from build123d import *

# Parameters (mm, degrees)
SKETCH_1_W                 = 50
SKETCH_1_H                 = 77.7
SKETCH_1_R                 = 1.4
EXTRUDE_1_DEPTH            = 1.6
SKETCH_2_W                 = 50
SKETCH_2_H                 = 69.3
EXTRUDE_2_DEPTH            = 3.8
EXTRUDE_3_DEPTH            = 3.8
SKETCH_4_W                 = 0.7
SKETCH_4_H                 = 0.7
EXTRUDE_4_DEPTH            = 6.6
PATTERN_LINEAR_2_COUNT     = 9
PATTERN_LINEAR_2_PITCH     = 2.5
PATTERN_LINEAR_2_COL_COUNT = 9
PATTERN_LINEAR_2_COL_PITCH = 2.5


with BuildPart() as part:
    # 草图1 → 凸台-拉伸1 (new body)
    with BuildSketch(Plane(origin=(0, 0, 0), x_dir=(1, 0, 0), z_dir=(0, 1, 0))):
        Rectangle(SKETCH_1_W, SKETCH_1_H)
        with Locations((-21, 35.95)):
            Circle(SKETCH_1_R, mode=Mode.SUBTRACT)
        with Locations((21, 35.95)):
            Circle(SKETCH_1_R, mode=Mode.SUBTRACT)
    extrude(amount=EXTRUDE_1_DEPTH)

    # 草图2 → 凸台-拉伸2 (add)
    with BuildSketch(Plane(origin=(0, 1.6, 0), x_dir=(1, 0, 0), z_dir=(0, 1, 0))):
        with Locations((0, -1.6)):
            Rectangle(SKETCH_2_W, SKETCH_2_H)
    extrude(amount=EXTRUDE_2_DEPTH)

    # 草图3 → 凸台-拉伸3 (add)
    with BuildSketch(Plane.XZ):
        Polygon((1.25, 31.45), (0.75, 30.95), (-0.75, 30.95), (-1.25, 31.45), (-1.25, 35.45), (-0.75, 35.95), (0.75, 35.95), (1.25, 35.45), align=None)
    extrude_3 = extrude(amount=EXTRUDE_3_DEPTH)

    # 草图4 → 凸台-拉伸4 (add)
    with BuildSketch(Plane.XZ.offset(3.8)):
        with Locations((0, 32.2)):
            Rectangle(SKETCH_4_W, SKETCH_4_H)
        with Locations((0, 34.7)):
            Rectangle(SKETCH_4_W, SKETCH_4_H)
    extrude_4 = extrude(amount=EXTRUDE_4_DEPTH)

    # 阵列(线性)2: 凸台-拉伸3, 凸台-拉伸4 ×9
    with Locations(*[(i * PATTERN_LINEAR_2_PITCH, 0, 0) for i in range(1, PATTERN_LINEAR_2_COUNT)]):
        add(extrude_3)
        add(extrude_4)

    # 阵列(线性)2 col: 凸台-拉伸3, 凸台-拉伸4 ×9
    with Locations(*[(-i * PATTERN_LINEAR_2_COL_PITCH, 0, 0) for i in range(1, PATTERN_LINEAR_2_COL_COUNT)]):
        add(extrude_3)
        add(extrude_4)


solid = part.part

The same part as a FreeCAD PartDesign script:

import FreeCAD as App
import Part
import Sketcher
Q = App.Units.Quantity


def add_polygon(sketch, points):
    """Adds a closed chain of lines whose ends are joined by coincident constraints."""
    first, n = sketch.GeometryCount, len(points)
    for a, b in zip(points, points[1:] + points[:1]):
        sketch.addGeometry(Part.LineSegment(App.Vector(*a, 0), App.Vector(*b, 0)), False)
    for i in range(n):
        sketch.addConstraint(Sketcher.Constraint("Coincident", first + i, 2, first + (i + 1) % n, 1))

doc = App.newDocument("Part")
body = doc.addObject("PartDesign::Body", "Body")

# Sketch on XZ plane
sketch1 = body.newObject("Sketcher::SketchObject", "Sketch")
sketch1.AttachmentSupport = (doc.getObject("XZ_Plane"), [""])
sketch1.MapMode = "FlatFace"
add_polygon(sketch1, [(-25, -38.9), (-25, 38.9), (25, 38.9), (25, -38.9)])  # lines 0-3
sketch1.addGeometry(Part.Circle(App.Vector(-21, -36, 0), App.Vector(0, 0, 1), 1.4), False)  # 4
sketch1.addGeometry(Part.Circle(App.Vector(21, -36, 0), App.Vector(0, 0, 1), 1.4), False)  # 5
sketch1.addConstraint(Sketcher.Constraint("Vertical", 0))
sketch1.addConstraint(Sketcher.Constraint("Horizontal", 1))
sketch1.addConstraint(Sketcher.Constraint("Vertical", 2))
sketch1.addConstraint(Sketcher.Constraint("Horizontal", 3))
sketch1.addConstraint(Sketcher.Constraint("Equal", 4, 5))
sketch1.addConstraint(Sketcher.Constraint("Symmetric", 0, 2, 2, 2, -1, 1))
sketch1.addConstraint(Sketcher.Constraint("Symmetric", 4, 3, 5, 3, -2))
sketch1.addConstraint(Sketcher.Constraint("Diameter", 4, Q("2.8 mm")))
sketch1.addConstraint(Sketcher.Constraint("DistanceX", 1, 1, 1, 2, Q("50 mm")))
sketch1.addConstraint(Sketcher.Constraint("DistanceY", 0, 1, 0, 2, Q("77.7 mm")))
sketch1.addConstraint(Sketcher.Constraint("DistanceX", 4, 3, -1, 1, Q("21 mm")))
sketch1.addConstraint(Sketcher.Constraint("DistanceY", 4, 3, 0, 2, Q("74.8 mm")))
pad1 = body.newObject("PartDesign::Pad", "Pad")
pad1.Profile = sketch1
pad1.Length = 1.6
pad1.Reversed = True

# Sketch on XZ plane
sketch2 = body.newObject("Sketcher::SketchObject", "Sketch001")
sketch2.AttachmentSupport = (doc.getObject("XZ_Plane"), [""])
sketch2.MapMode = "FlatFace"
sketch2.AttachmentOffset = App.Placement(App.Vector(0, 0, -1.6), App.Rotation())
add_polygon(sketch2, [(-25, -33), (-25, 36), (25, 36), (25, -33)])  # lines 0-3
sketch2.addConstraint(Sketcher.Constraint("Vertical", 0))
sketch2.addConstraint(Sketcher.Constraint("Horizontal", 1))
sketch2.addConstraint(Sketcher.Constraint("Vertical", 2))
sketch2.addConstraint(Sketcher.Constraint("Horizontal", 3))
sketch2.addConstraint(Sketcher.Constraint("DistanceX", 1, 1, 1, 2, Q("50 mm")))
sketch2.addConstraint(Sketcher.Constraint("DistanceY", 0, 1, 0, 2, Q("69.3 mm")))
sketch2.addConstraint(Sketcher.Constraint("DistanceX", 0, 2, -1, 1, Q("25 mm")))
sketch2.addConstraint(Sketcher.Constraint("DistanceY", -1, 1, 0, 2, Q("36.25 mm")))
pad2 = body.newObject("PartDesign::Pad", "Pad001")
pad2.Profile = sketch2
pad2.Length = 3.8
pad2.Reversed = True

# Sketch on XZ plane
sketch3 = body.newObject("Sketcher::SketchObject", "Sketch002")
sketch3.AttachmentSupport = (doc.getObject("XZ_Plane"), [""])
sketch3.MapMode = "FlatFace"
add_polygon(sketch3, [(0.8, 30.9), (1.2, 31.4), (1.2, 35.5), (0.8, 36), (-0.8, 36), (-1.2, 35.5), (-1.2, 31.4), (-0.8, 30.9)])  # lines 0-7
sketch3.addConstraint(Sketcher.Constraint("Vertical", 1))
sketch3.addConstraint(Sketcher.Constraint("Horizontal", 3))
sketch3.addConstraint(Sketcher.Constraint("Vertical", 5))
sketch3.addConstraint(Sketcher.Constraint("Horizontal", 7))
sketch3.addConstraint(Sketcher.Constraint("Symmetric", 1, 2, 4, 2, -2))
sketch3.addConstraint(Sketcher.Constraint("Perpendicular", 0, 2))
sketch3.addConstraint(Sketcher.Constraint("Perpendicular", 2, 4))
sketch3.addConstraint(Sketcher.Constraint("Perpendicular", 4, 6))
sketch3.addConstraint(Sketcher.Constraint("Horizontal", 0, 2, 5, 2))
sketch3.addConstraint(Sketcher.Constraint("Vertical", 3, 2, 6, 2))
sketch3.addConstraint(Sketcher.Constraint("Vertical", 2, 2, 7, 2))
sketch3.addConstraint(Sketcher.Constraint("DistanceY", 1, 1, 1, 2, Q("4 mm")))
sketch3.addConstraint(Sketcher.Constraint("DistanceX", 3, 2, 3, 1, Q("1.5 mm")))
sketch3.addConstraint(Sketcher.Constraint("DistanceX", 3, 2, 1, 2, Q("2 mm")))
sketch3.addConstraint(Sketcher.Constraint("DistanceY", -1, 1, 0, 2, Q("31.45 mm")))
pad3 = body.newObject("PartDesign::Pad", "Pad002")
pad3.Profile = sketch3
pad3.Length = 3.8

# Sketch on XZ plane
sketch4 = body.newObject("Sketcher::SketchObject", "Sketch003")
sketch4.AttachmentSupport = (doc.getObject("XZ_Plane"), [""])
sketch4.MapMode = "FlatFace"
sketch4.AttachmentOffset = App.Placement(App.Vector(0, 0, 3.8), App.Rotation())
add_polygon(sketch4, [(-0.3, 32.5), (-0.3, 31.9), (0.3, 31.9), (0.3, 32.5)])  # lines 0-3
add_polygon(sketch4, [(-0.3, 35), (-0.3, 34.4), (0.3, 34.4), (0.3, 35)])  # lines 4-7
sketch4.addConstraint(Sketcher.Constraint("Vertical", 0))
sketch4.addConstraint(Sketcher.Constraint("Horizontal", 1))
sketch4.addConstraint(Sketcher.Constraint("Vertical", 2))
sketch4.addConstraint(Sketcher.Constraint("Horizontal", 3))
sketch4.addConstraint(Sketcher.Constraint("Vertical", 4))
sketch4.addConstraint(Sketcher.Constraint("Horizontal", 5))
sketch4.addConstraint(Sketcher.Constraint("Vertical", 6))
sketch4.addConstraint(Sketcher.Constraint("Horizontal", 7))
sketch4.addConstraint(Sketcher.Constraint("Vertical", 3, 2, 4, 2))
sketch4.addConstraint(Sketcher.Constraint("Vertical", 2, 2, 5, 2))
sketch4.addConstraint(Sketcher.Constraint("Equal", 7, 0))
sketch4.addConstraint(Sketcher.Constraint("Equal", 2, 4))
sketch4.addConstraint(Sketcher.Constraint("DistanceX", 1, 1, 1, 2, Q("0.7 mm")))
sketch4.addConstraint(Sketcher.Constraint("DistanceY", 3, 2, 4, 2, Q("1.8 mm")))
sketch4.addConstraint(Sketcher.Constraint("DistanceX", 0, 2, -1, 1, Q("0.35 mm")))
sketch4.addConstraint(Sketcher.Constraint("DistanceY", -1, 1, 0, 2, Q("31.85 mm")))
pad4 = body.newObject("PartDesign::Pad", "Pad003")
pad4.Profile = sketch4
pad4.Length = 6.6
doc.recompute()

linearpattern = body.newObject("PartDesign::LinearPattern", "LinearPattern")
linearpattern.Originals = [pad3, pad4]
linearpattern.Direction = (doc.getObject("X_Axis"), [""])
linearpattern.Mode = "offset"
linearpattern.Offset = 2.5
linearpattern.Occurrences = 9
body.Tip = linearpattern
doc.recompute()

linearpattern2 = body.newObject("PartDesign::LinearPattern", "LinearPattern001")
linearpattern2.Originals = [pad3, pad4]
linearpattern2.Direction = (doc.getObject("X_Axis"), [""])
linearpattern2.Mode = "offset"
linearpattern2.Offset = 2.5
linearpattern2.Occurrences = 9
linearpattern2.Reversed = True
body.Tip = linearpattern2

doc.recompute()
